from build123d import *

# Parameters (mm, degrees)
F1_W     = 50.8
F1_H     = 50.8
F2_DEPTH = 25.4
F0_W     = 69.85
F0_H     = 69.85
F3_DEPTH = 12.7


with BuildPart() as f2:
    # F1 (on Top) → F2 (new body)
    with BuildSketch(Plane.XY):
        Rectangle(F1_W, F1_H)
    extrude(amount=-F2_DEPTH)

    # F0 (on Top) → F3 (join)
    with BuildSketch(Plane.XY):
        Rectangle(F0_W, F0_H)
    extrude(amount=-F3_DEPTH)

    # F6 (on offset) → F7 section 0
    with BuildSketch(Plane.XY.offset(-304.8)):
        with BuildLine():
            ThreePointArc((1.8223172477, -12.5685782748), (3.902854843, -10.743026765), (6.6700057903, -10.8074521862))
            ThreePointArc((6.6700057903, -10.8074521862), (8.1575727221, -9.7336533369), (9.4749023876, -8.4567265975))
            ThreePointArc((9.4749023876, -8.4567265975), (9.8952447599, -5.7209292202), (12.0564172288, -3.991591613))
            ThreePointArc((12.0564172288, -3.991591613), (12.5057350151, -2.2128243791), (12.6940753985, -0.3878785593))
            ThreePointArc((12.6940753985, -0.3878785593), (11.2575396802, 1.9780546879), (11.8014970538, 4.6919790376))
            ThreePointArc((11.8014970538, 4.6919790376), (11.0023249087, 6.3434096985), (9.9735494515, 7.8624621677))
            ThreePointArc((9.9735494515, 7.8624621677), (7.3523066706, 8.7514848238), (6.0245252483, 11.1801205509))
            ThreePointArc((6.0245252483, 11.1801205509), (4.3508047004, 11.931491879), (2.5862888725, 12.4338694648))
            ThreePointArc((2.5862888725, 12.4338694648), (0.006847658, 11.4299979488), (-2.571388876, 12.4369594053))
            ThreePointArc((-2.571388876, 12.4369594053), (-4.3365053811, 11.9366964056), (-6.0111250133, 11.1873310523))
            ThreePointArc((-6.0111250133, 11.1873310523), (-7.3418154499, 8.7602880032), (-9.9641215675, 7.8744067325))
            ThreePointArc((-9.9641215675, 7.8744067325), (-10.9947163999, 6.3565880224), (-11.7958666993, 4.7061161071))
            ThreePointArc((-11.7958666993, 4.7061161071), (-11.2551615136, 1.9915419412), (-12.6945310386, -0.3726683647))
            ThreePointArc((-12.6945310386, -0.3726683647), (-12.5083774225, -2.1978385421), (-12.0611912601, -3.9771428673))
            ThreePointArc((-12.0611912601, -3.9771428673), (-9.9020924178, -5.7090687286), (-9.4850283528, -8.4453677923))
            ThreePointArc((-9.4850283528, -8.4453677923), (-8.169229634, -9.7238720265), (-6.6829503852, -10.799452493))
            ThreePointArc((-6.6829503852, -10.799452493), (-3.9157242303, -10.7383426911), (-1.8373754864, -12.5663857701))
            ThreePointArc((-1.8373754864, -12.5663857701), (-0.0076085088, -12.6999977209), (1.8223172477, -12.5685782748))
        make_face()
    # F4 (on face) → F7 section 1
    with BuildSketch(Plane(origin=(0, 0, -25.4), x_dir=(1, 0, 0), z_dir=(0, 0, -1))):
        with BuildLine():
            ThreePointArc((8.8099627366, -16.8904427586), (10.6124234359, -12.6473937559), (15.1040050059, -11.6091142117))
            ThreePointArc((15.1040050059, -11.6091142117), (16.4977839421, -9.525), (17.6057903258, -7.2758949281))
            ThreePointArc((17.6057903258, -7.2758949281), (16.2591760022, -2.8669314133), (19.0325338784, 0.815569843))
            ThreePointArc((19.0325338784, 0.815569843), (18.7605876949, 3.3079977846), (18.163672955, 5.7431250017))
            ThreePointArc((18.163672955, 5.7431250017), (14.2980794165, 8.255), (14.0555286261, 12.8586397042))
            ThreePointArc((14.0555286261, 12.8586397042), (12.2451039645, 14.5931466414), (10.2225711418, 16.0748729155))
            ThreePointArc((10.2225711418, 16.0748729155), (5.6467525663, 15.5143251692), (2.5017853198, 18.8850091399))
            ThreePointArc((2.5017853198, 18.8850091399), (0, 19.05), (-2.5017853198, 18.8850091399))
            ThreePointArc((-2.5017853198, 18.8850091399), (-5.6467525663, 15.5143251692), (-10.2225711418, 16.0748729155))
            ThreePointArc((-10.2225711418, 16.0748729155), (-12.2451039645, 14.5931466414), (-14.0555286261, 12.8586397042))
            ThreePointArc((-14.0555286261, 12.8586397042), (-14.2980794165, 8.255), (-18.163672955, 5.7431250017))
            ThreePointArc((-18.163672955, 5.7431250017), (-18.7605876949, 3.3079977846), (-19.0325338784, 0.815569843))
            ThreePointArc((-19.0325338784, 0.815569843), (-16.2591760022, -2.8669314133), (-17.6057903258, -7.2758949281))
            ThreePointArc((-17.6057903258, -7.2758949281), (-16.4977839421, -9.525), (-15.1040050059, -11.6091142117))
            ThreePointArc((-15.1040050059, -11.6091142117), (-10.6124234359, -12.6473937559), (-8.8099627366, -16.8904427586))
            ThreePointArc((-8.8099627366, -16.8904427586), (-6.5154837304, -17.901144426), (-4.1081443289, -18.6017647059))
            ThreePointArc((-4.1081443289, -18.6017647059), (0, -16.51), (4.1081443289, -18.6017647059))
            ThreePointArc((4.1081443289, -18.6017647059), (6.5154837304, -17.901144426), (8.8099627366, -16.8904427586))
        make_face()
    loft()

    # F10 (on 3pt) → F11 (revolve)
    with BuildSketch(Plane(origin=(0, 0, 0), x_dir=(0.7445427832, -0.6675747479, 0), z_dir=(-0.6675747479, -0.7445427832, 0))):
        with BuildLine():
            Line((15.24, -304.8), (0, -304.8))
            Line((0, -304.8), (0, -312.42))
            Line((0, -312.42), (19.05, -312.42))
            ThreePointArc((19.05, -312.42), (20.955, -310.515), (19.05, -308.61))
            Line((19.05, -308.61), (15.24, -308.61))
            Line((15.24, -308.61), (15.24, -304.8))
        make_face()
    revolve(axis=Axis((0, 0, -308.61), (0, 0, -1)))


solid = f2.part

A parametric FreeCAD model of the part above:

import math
import FreeCAD as App
import Part
import Sketcher

V = App.Vector
Q = App.Units.Quantity


def add_polygon(sketch, points):
    """Adds a closed chain of lines whose ends are joined by coincident constraints."""
    first, n = sketch.GeometryCount, len(points)
    for a, b in zip(points, points[1:] + points[:1]):
        sketch.addGeometry(Part.LineSegment(App.Vector(*a, 0), App.Vector(*b, 0)), False)
    for i in range(n):
        sketch.addConstraint(Sketcher.Constraint("Coincident", first + i, 2, first + (i + 1) % n, 1))

doc = App.newDocument("Part")
body = doc.addObject("PartDesign::Body", "Body")

sketch1 = body.newObject("Sketcher::SketchObject", "Sketch")
sketch1.AttachmentSupport = (doc.getObject("XY_Plane"), [""])
sketch1.MapMode = "FlatFace"
add_polygon(sketch1, [(-25, 25), (-25, -25), (25, -25), (25, 25)])
sketch1.addConstraint([
    Sketcher.Constraint("Vertical", 0),
    Sketcher.Constraint("Horizontal", 1),
    Sketcher.Constraint("Vertical", 2),
    Sketcher.Constraint("Horizontal", 3),
    Sketcher.Constraint("Symmetric", 0, 2, 2, 2, -1, 1),
    Sketcher.Constraint("Equal", 3, 0),
    Sketcher.Constraint("DistanceX", 1, 1, 1, 2, Q("2 in")),
])
pad1 = body.newObject("PartDesign::Pad", "Pad")
pad1.Profile = sketch1
pad1.Length = Q("1 in")
pad1.Reversed = True

sketch2 = body.newObject("Sketcher::SketchObject", "Sketch001")
sketch2.AttachmentSupport = (doc.getObject("XY_Plane"), [""])
sketch2.MapMode = "FlatFace"
add_polygon(sketch2, [(-35, 35), (-35, -35), (35, -35), (35, 35)])
sketch2.addConstraint([
    Sketcher.Constraint("Vertical", 0),
    Sketcher.Constraint("Horizontal", 1),
    Sketcher.Constraint("Vertical", 2),
    Sketcher.Constraint("Horizontal", 3),
    Sketcher.Constraint("Symmetric", 0, 2, 2, 2, -1, 1),
    Sketcher.Constraint("Equal", 3, 0),
    Sketcher.Constraint("DistanceX", 1, 1, 1, 2, Q("2.75 in")),
])
pad2 = body.newObject("PartDesign::Pad", "Pad001")
pad2.Profile = sketch2
pad2.Length = Q("0.5 in")
pad2.Reversed = True

sketch3 = body.newObject("Sketcher::SketchObject", "Sketch002")
sketch3.AttachmentSupport = (doc.getObject("XY_Plane"), [""])
sketch3.MapMode = "FlatFace"
sketch3.AttachmentOffset = App.Placement(V(0, 0, -12 * 25.4), App.Rotation())
sketch3.addGeometry([
    Part.ArcOfCircle(Part.Circle(V(5.2, -14.3, 0), V(0, 0, 1), 3.8), math.radians(67), math.radians(153)),
    Part.ArcOfCircle(Part.Circle(V(0, 0, 0), V(0, 0, 1), 12.7), math.radians(-58.32), math.radians(-41.75)),
    Part.ArcOfCircle(Part.Circle(V(13.2, -7.6, 0), V(0, 0, 1), 3.8), math.radians(107), math.radians(193)),
    Part.ArcOfCircle(Part.Circle(V(0, 0, 0), V(0, 0, 1), 12.7), math.radians(-18.32), math.radians(-1.75)),
    Part.ArcOfCircle(Part.Circle(V(15, 2.6, 0), V(0, 0, 1), 3.8), math.radians(147), math.radians(233)),
    Part.ArcOfCircle(Part.Circle(V(0, 0, 0), V(0, 0, 1), 12.7), math.radians(21.68), math.radians(38.25)),
    Part.ArcOfCircle(Part.Circle(V(9.8, 11.7, 0), V(0, 0, 1), 3.8), math.radians(-173), math.radians(-87)),
    Part.ArcOfCircle(Part.Circle(V(0, 0, 0), V(0, 0, 1), 12.7), math.radians(61.68), math.radians(78.25)),
    Part.ArcOfCircle(Part.Circle(V(0, 15.2, 0), V(0, 0, 1), 3.8), math.radians(-133), math.radians(-47)),
    Part.ArcOfCircle(Part.Circle(V(0, 0, 0), V(0, 0, 1), 12.7), math.radians(101.68), math.radians(118.25)),
    Part.ArcOfCircle(Part.Circle(V(-9.8, 11.7, 0), V(0, 0, 1), 3.8), math.radians(-93), math.radians(-7)),
    Part.ArcOfCircle(Part.Circle(V(0, 0, 0), V(0, 0, 1), 12.7), math.radians(141.68), math.radians(158.25)),
    Part.ArcOfCircle(Part.Circle(V(-15, 2.7, 0), V(0, 0, 1), 3.8), math.radians(-53), math.radians(33)),
    Part.ArcOfCircle(Part.Circle(V(0, 0, 0), V(0, 0, 1), 12.7), math.radians(-178.32), math.radians(-161.75)),
    Part.ArcOfCircle(Part.Circle(V(-13.2, -7.6, 0), V(0, 0, 1), 3.8), math.radians(-13), math.radians(73)),
    Part.ArcOfCircle(Part.Circle(V(0, 0, 0), V(0, 0, 1), 12.7), math.radians(-138.32), math.radians(-121.75)),
    Part.ArcOfCircle(Part.Circle(V(-5.2, -14.3, 0), V(0, 0, 1), 3.8), math.radians(27), math.radians(113)),
    Part.ArcOfCircle(Part.Circle(V(0, 0, 0), V(0, 0, 1), 12.7), math.radians(-98.32), math.radians(-81.75)),
], False)
sketch3.addConstraint([
    Sketcher.Constraint("Coincident", 0, 1, 1, 1),
    Sketcher.Constraint("Coincident", 1, 2, 2, 2),
    Sketcher.Constraint("Coincident", 2, 1, 3, 1),
    Sketcher.Constraint("Coincident", 3, 2, 4, 2),
    Sketcher.Constraint("Coincident", 4, 1, 5, 1),
    Sketcher.Constraint("Coincident", 5, 2, 6, 2),
    Sketcher.Constraint("Coincident", 6, 1, 7, 1),
    Sketcher.Constraint("Coincident", 7, 2, 8, 2),
    Sketcher.Constraint("Coincident", 8, 1, 9, 1),
    Sketcher.Constraint("Coincident", 9, 2, 10, 2),
    Sketcher.Constraint("Coincident", 10, 1, 11, 1),
    Sketcher.Constraint("Coincident", 11, 2, 12, 2),
    Sketcher.Constraint("Coincident", 12, 1, 13, 1),
    Sketcher.Constraint("Coincident", 13, 2, 14, 2),
    Sketcher.Constraint("Coincident", 14, 1, 15, 1),
    Sketcher.Constraint("Coincident", 15, 2, 16, 2),
    Sketcher.Constraint("Coincident", 16, 1, 17, 1),
    Sketcher.Constraint("Coincident", 17, 2, 0, 2),
    Sketcher.Constraint("Coincident", 1, 3, -1, 1),
    Sketcher.Constraint("Coincident", 3, 3, -1, 1),
    Sketcher.Constraint("Coincident", 5, 3, -1, 1),
    Sketcher.Constraint("Coincident", 7, 3, -1, 1),
    Sketcher.Constraint("Coincident", 9, 3, -1, 1),
    Sketcher.Constraint("Coincident", 11, 3, -1, 1),
    Sketcher.Constraint("Coincident", 13, 3, -1, 1),
    Sketcher.Constraint("Coincident", 15, 3, -1, 1),
    Sketcher.Constraint("Coincident", 17, 3, -1, 1),
    Sketcher.Constraint("Equal", 0, 2),
    Sketcher.Constraint("Equal", 1, 3),
    Sketcher.Constraint("Equal", 2, 4),
    Sketcher.Constraint("Equal", 3, 5),
    Sketcher.Constraint("Equal", 4, 6),
    Sketcher.Constraint("Equal", 5, 7),
    Sketcher.Constraint("Equal", 6, 8),
    Sketcher.Constraint("Equal", 7, 9),
    Sketcher.Constraint("Equal", 8, 10),
    Sketcher.Constraint("Equal", 9, 11),
    Sketcher.Constraint("Equal", 10, 12),
    Sketcher.Constraint("Equal", 11, 13),
    Sketcher.Constraint("Equal", 12, 14),
    Sketcher.Constraint("Equal", 13, 15),
    Sketcher.Constraint("Equal", 14, 16),
    Sketcher.Constraint("Equal", 15, 17),
    Sketcher.Constraint("Radius", 1, Q("0.5 in")),
    Sketcher.Constraint("Radius", 0, Q("0.15 in")),
    Sketcher.Constraint("DistanceY", -1, 1, 8, 3, Q("0.5999999 in")),
    Sketcher.Constraint("DistanceY", 16, 3, 14, 3, Q("6.705699 mm")),
    Sketcher.Constraint("DistanceX", 0, 3, 0, 1, Q("1.466199 mm")),
    Sketcher.Constraint("DistanceX", 10, 3, 8, 1, Q("7.217698 mm")),
    Sketcher.Constraint("DistanceX", 14, 3, 13, 2, Q("1.141599 mm")),
    Sketcher.Constraint("DistanceY", 14, 1, 12, 1, Q("8.072699 mm")),
    Sketcher.Constraint("DistanceX", -1, 1, 2, 3, Q("13.19366 mm")),
    Sketcher.Constraint("DistanceX", -1, 1, 8, 3, Q("0.00913 mm")),
    Sketcher.Constraint("DistanceY", -1, 1, 12, 3, Q("2.655389 mm")),
    Sketcher.Constraint("DistanceX", 14, 3, -1, 1, Q("13.20279 mm")),
    Sketcher.Constraint("DistanceY", 2, 1, -1, 1, Q("3.991592 mm")),
    Sketcher.Constraint("DistanceY", 3, 2, -1, 1, Q("0.387879 mm")),
    Sketcher.Constraint("DistanceY", -1, 1, 4, 1, Q("4.691979 mm")),
    Sketcher.Constraint("DistanceX", -1, 1, 5, 2, Q("9.973549 mm")),
    Sketcher.Constraint("DistanceY", -1, 1, 6, 1, Q("11.180121 mm")),
    Sketcher.Constraint("DistanceY", -1, 1, 9, 2, Q("11.187331 mm")),
    Sketcher.Constraint("DistanceX", 15, 2, -1, 1, Q("6.68295 mm")),
    Sketcher.Constraint("DistanceY", 17, 2, -1, 1, Q("12.568578 mm")),
])

sketch4 = body.newObject("Sketcher::SketchObject", "Sketch003")
sketch4.AttachmentSupport = (doc.getObject("XY_Plane"), [""])
sketch4.MapMode = "FlatFace"
sketch4.AttachmentOffset = App.Placement(V(0, 0, -1 * 25.4), App.Rotation())
sketch4.addGeometry([
    Part.ArcOfCircle(Part.Circle(V(14, 17, 0), V(0, 0, 1), 5), math.radians(176), math.radians(284)),
    Part.ArcOfCircle(Part.Circle(V(0, 0, 0), V(0, 0, 1), 19), math.radians(22.45), math.radians(37.55)),
    Part.ArcOfCircle(Part.Circle(V(21, 4, 0), V(0, 0, 1), 5), math.radians(136), math.radians(244)),
    Part.ArcOfCircle(Part.Circle(V(0, 0, 0), V(0, 0, 1), 19), math.radians(-17.55), math.radians(-2.45)),
    Part.ArcOfCircle(Part.Circle(V(19, -11, 0), V(0, 0, 1), 5), math.radians(96), math.radians(204)),
    Part.ArcOfCircle(Part.Circle(V(0, 0, 0), V(0, 0, 1), 19), math.radians(-57.55), math.radians(-42.45)),
    Part.ArcOfCircle(Part.Circle(V(7, -20, 0), V(0, 0, 1), 5), math.radians(56), math.radians(164)),
    Part.ArcOfCircle(Part.Circle(V(0, 0, 0), V(0, 0, 1), 19), math.radians(-97.55), math.radians(-82.45)),
    Part.ArcOfCircle(Part.Circle(V(-7, -20, 0), V(0, 0, 1), 5), math.radians(16), math.radians(124)),
    Part.ArcOfCircle(Part.Circle(V(0, 0, 0), V(0, 0, 1), 19), math.radians(-137.55), math.radians(-122.45)),
    Part.ArcOfCircle(Part.Circle(V(-19, -11, 0), V(0, 0, 1), 5), math.radians(-24), math.radians(84)),
    Part.ArcOfCircle(Part.Circle(V(0, 0, 0), V(0, 0, 1), 19), math.radians(-177.55), math.radians(-162.45)),
    Part.ArcOfCircle(Part.Circle(V(-21, 4, 0), V(0, 0, 1), 5), math.radians(-64), math.radians(44)),
    Part.ArcOfCircle(Part.Circle(V(0, 0, 0), V(0, 0, 1), 19), math.radians(142.45), math.radians(157.55)),
    Part.ArcOfCircle(Part.Circle(V(-14, 17, 0), V(0, 0, 1), 5), math.radians(-104), math.radians(4)),
    Part.ArcOfCircle(Part.Circle(V(0, 0, 0), V(0, 0, 1), 19), math.radians(102.45), math.radians(117.55)),
    Part.ArcOfCircle(Part.Circle(V(0, 22, 0), V(0, 0, 1), 5), math.radians(-144), math.radians(-36)),
    Part.ArcOfCircle(Part.Circle(V(0, 0, 0), V(0, 0, 1), 19), math.radians(62.45), math.radians(77.55)),
], False)
sketch4.addConstraint([
    Sketcher.Constraint("Coincident", 0, 2, 1, 2),
    Sketcher.Constraint("Coincident", 1, 1, 2, 1),
    Sketcher.Constraint("Coincident", 2, 2, 3, 2),
    Sketcher.Constraint("Coincident", 3, 1, 4, 1),
    Sketcher.Constraint("Coincident", 4, 2, 5, 2),
    Sketcher.Constraint("Coincident", 5, 1, 6, 1),
    Sketcher.Constraint("Coincident", 6, 2, 7, 2),
    Sketcher.Constraint("Coincident", 7, 1, 8, 1),
    Sketcher.Constraint("Coincident", 8, 2, 9, 2),
    Sketcher.Constraint("Coincident", 9, 1, 10, 1),
    Sketcher.Constraint("Coincident", 10, 2, 11, 2),
    Sketcher.Constraint("Coincident", 11, 1, 12, 1),
    Sketcher.Constraint("Coincident", 12, 2, 13, 2),
    Sketcher.Constraint("Coincident", 13, 1, 14, 1),
    Sketcher.Constraint("Coincident", 14, 2, 15, 2),
    Sketcher.Constraint("Coincident", 15, 1, 16, 1),
    Sketcher.Constraint("Coincident", 16, 2, 17, 2),
    Sketcher.Constraint("Coincident", 17, 1, 0, 1),
    Sketcher.Constraint("Coincident", 1, 3, -1, 1),
    Sketcher.Constraint("Coincident", 3, 3, -1, 1),
    Sketcher.Constraint("Coincident", 5, 3, -1, 1),
    Sketcher.Constraint("Coincident", 7, 3, -1, 1),
    Sketcher.Constraint("Coincident", 9, 3, -1, 1),
    Sketcher.Constraint("Coincident", 11, 3, -1, 1),
    Sketcher.Constraint("Coincident", 13, 3, -1, 1),
    Sketcher.Constraint("Coincident", 15, 3, -1, 1),
    Sketcher.Constraint("Coincident", 17, 3, -1, 1),
    Sketcher.Constraint("Equal", 0, 2),
    Sketcher.Constraint("Equal", 1, 3),
    Sketcher.Constraint("Equal", 2, 4),
    Sketcher.Constraint("Equal", 3, 5),
    Sketcher.Constraint("Equal", 4, 6),
    Sketcher.Constraint("Equal", 5, 7),
    Sketcher.Constraint("Equal", 6, 8),
    Sketcher.Constraint("Equal", 7, 9),
    Sketcher.Constraint("Equal", 8, 10),
    Sketcher.Constraint("Equal", 9, 11),
    Sketcher.Constraint("Equal", 10, 12),
    Sketcher.Constraint("Equal", 11, 13),
    Sketcher.Constraint("Equal", 12, 14),
    Sketcher.Constraint("Equal", 13, 15),
    Sketcher.Constraint("Equal", 14, 16),
    Sketcher.Constraint("Equal", 15, 17),
    Sketcher.Constraint("Symmetric", 6, 3, 8, 3, -2),
    Sketcher.Constraint("Symmetric", 4, 3, 10, 3, -2),
    Sketcher.Constraint("Symmetric", 2, 3, 12, 3, -2),
    Sketcher.Constraint("Symmetric", 0, 3, 14, 3, -2),
    Sketcher.Constraint("PointOnObject", 16, 3, -2),
    Sketcher.Constraint("Radius", 0, Q("0.2 in")),
    Sketcher.Constraint("Radius", 1, Q("0.75 in")),
    Sketcher.Constraint("DistanceY", -1, 1, 16, 3, Q("0.85 in")),
    Sketcher.Constraint("DistanceY", 4, 3, -1, 1, Q("0.425 in")),
    Sketcher.Constraint("DistanceY", -1, 1, 0, 3, Q("16.5389 mm")),
    Sketcher.Constraint("DistanceX", -1, 1, 2, 3, Q("21.261999 mm")),
    Sketcher.Constraint("DistanceX", 1, 1, 4, 3, Q("1.091698 mm")),
    Sketcher.Constraint("DistanceX", 5, 1, 3, 1, Q("7.941102 mm")),
    Sketcher.Constraint("DistanceX", 8, 3, 6, 2, Q("9.886 mm")),
    Sketcher.Constraint("DistanceX", -1, 1, 4, 3, Q("18.697488 mm")),
    Sketcher.Constraint("DistanceX", 0, 3, 0, 2, Q("1.226221 mm")),
])

additiveloft = body.newObject("PartDesign::AdditiveLoft", "AdditiveLoft")
additiveloft.Profile = sketch3
additiveloft.Sections = [sketch4]

sketch5 = body.newObject("Sketcher::SketchObject", "Sketch004")
sketch5.Placement = App.Placement(V(0, 0, 0), App.Rotation(V(0.744542783, -0.667574748, 0), V(0, 0, 1), V(-0.667574748, -0.744542783, 0), "ZXY"))
sketch5.addGeometry([
    Part.LineSegment(V(15.2, -304.8, 0), V(0, -304.8, 0)),
    Part.LineSegment(V(0, -304.8, 0), V(0, -312.4, 0)),
    Part.LineSegment(V(0, -312.4, 0), V(19, -312.4, 0)),
    Part.ArcOfCircle(Part.Circle(V(19, -310.5, 0), V(0, 0, 1), 1.9), math.radians(-90), math.radians(90)),
    Part.LineSegment(V(19, -308.6, 0), V(15.2, -308.6, 0)),
    Part.LineSegment(V(15.2, -308.6, 0), V(15.2, -304.8, 0)),
], False)
sketch5.addConstraint([
    Sketcher.Constraint("Coincident", 0, 2, 1, 1),
    Sketcher.Constraint("Coincident", 1, 2, 2, 1),
    Sketcher.Constraint("Tangent", 2, 2, 3, 1),
    Sketcher.Constraint("Tangent", 3, 2, 4, 1),
    Sketcher.Constraint("Coincident", 4, 2, 5, 1),
    Sketcher.Constraint("Coincident", 5, 2, 0, 1),
    Sketcher.Constraint("Horizontal", 0),
    Sketcher.Constraint("Vertical", 1),
    Sketcher.Constraint("Horizontal", 2),
    Sketcher.Constraint("Horizontal", 4),
    Sketcher.Constraint("Vertical", 5),
    Sketcher.Constraint("PointOnObject", 0, 2, -2),
    Sketcher.Constraint("Equal", 4, 5),
    Sketcher.Constraint("DistanceX", 0, 2, 0, 1, Q("0.6 in")),
    Sketcher.Constraint("DistanceY", 1, 2, 1, 1, Q("0.3 in")),
    Sketcher.Constraint("DistanceY", 0, 2, -1, 1, Q("12 in")),
    Sketcher.Constraint("Radius", 3, Q("0.075 in")),
])
revolution = body.newObject("PartDesign::Revolution", "Revolution")
revolution.Profile = sketch5
revolution.ReferenceAxis = (sketch5, ["V_Axis"])
revolution.Angle = 360

doc.recompute()
